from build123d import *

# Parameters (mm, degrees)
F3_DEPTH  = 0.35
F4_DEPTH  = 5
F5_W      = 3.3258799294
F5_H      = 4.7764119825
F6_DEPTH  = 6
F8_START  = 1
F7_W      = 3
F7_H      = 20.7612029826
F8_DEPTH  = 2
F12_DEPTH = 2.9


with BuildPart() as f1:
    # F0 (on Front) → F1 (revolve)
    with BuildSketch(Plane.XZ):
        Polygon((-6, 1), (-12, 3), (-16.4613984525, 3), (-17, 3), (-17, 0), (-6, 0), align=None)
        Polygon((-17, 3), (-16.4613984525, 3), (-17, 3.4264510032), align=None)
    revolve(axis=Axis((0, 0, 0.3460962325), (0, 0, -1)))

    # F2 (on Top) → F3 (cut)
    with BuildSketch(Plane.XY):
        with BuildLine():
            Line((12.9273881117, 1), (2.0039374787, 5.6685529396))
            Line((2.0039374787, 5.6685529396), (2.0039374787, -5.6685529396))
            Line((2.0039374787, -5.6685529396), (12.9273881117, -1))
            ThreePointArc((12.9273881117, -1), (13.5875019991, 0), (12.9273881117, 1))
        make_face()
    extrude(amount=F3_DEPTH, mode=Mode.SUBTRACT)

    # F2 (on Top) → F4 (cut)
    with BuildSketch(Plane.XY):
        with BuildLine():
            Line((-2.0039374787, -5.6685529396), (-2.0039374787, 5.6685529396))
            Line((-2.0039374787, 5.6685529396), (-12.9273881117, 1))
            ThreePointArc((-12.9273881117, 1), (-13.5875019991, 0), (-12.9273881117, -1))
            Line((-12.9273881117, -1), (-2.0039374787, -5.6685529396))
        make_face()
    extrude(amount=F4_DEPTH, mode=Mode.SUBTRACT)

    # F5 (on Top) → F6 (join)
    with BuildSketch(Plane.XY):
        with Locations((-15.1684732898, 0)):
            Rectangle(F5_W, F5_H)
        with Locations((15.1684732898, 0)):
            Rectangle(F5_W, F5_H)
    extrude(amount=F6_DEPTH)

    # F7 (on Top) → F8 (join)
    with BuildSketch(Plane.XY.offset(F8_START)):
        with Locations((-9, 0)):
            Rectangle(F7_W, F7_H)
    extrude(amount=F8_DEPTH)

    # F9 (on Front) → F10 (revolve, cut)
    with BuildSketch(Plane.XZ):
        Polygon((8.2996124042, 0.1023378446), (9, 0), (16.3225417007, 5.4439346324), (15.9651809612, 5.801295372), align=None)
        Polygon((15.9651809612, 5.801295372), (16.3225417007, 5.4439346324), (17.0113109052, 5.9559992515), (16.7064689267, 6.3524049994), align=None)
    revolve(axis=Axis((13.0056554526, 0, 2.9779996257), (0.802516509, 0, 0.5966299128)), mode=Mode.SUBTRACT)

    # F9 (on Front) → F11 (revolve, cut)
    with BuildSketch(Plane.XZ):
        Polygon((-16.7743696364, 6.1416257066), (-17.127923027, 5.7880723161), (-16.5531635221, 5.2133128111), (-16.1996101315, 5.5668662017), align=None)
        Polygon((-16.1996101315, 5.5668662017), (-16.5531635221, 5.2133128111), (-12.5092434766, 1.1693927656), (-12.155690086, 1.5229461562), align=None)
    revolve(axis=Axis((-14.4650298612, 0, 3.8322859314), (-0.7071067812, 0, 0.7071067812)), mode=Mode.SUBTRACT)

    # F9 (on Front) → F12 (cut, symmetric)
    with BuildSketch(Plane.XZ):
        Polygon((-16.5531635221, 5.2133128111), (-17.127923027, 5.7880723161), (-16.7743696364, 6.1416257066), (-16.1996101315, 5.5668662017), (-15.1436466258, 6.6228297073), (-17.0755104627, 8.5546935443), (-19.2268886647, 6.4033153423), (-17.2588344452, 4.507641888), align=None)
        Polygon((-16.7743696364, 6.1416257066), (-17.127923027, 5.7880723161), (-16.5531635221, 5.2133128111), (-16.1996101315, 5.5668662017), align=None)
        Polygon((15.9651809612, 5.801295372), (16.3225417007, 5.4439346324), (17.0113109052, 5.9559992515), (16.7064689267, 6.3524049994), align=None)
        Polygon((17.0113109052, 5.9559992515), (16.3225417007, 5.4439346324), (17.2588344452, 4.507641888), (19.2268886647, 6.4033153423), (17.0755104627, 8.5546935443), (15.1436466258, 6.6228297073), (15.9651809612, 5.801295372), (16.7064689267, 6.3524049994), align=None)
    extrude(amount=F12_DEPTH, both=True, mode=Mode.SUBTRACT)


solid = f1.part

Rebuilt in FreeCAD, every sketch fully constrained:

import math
import FreeCAD as App
import Part
import Sketcher
from FreeCAD import Vector
Q = App.Units.Quantity

doc = App.newDocument("Part")
body = doc.addObject("PartDesign::Body", "Body")

sketch1 = body.newObject("Sketcher::SketchObject", "Sketch")
sketch1.AttachmentSupport = (doc.getObject("XZ_Plane"), [""])
sketch1.MapMode = "FlatFace"
sketch1.addGeometry([
    Part.LineSegment(Vector(-6, 1, 0), Vector(-12, 3, 0)),
    Part.LineSegment(Vector(-12, 3, 0), Vector(-16.461398, 3, 0)),
    Part.LineSegment(Vector(-16.461398, 3, 0), Vector(-17, 3.426451, 0)),
    Part.LineSegment(Vector(-17, 3.426451, 0), Vector(-17, 0, 0)),
    Part.LineSegment(Vector(-17, 0, 0), Vector(-6, 0, 0)),
    Part.LineSegment(Vector(-6, 0, 0), Vector(-6, 1, 0)),
], False)
sketch1.addConstraint([
    Sketcher.Constraint("Coincident", 0, 2, 1, 1),
    Sketcher.Constraint("Coincident", 1, 2, 2, 1),
    Sketcher.Constraint("Coincident", 2, 2, 3, 1),
    Sketcher.Constraint("Coincident", 3, 2, 4, 1),
    Sketcher.Constraint("Coincident", 4, 2, 5, 1),
    Sketcher.Constraint("Coincident", 5, 2, 0, 1),
    Sketcher.Constraint("Horizontal", 1),
    Sketcher.Constraint("Vertical", 3),
    Sketcher.Constraint("Horizontal", 4),
    Sketcher.Constraint("Vertical", 5),
    Sketcher.Constraint("PointOnObject", 3, 2, -1),
    Sketcher.Constraint("DistanceX", 4, 1, 4, 2, 11.0),
    Sketcher.Constraint("DistanceY", 5, 1, 5, 2, 1.0),
    Sketcher.Constraint("DistanceX", 0, 2, -1, 1, 12.0),
    Sketcher.Constraint("DistanceY", -1, 1, 0, 2, 3.0),
    Sketcher.Constraint("DistanceX", 2, 2, -1, 1, 17.0),
    Sketcher.Constraint("DistanceX", 1, 2, 1, 1, 4.461398),
    Sketcher.Constraint("DistanceY", 3, 2, 3, 1, 3.426451),
])
revolution = body.newObject("PartDesign::Revolution", "Revolution")
revolution.Profile = sketch1
revolution.ReferenceAxis = (sketch1, ["V_Axis"])
revolution.Angle = 360

sketch2 = body.newObject("Sketcher::SketchObject", "Sketch001")
sketch2.AttachmentSupport = (doc.getObject("XY_Plane"), [""])
sketch2.MapMode = "FlatFace"
sketch2.addGeometry([
    Part.LineSegment(Vector(12.927388, 1, 0), Vector(2.003937, 5.668553, 0)),
    Part.LineSegment(Vector(2.003937, 5.668553, 0), Vector(2.003937, -5.668553, 0)),
    Part.LineSegment(Vector(2.003937, -5.668553, 0), Vector(12.927388, -1, 0)),
    Part.ArcOfCircle(Part.Circle(Vector(12.5, 0, 0), Vector(0, 0, 1), 1.087502), math.radians(-66.858713), math.radians(66.858713)),
], False)
sketch2.addConstraint([
    Sketcher.Constraint("Coincident", 0, 2, 1, 1),
    Sketcher.Constraint("Coincident", 1, 2, 2, 1),
    Sketcher.Constraint("Tangent", 2, 2, 3, 1),
    Sketcher.Constraint("Tangent", 3, 2, 0, 1),
    Sketcher.Constraint("Vertical", 1),
    Sketcher.Constraint("Symmetric", 2, 2, 3, 2, -1),
    Sketcher.Constraint("DistanceY", 2, 2, -1, 1, 1.0),
    Sketcher.Constraint("DistanceX", -1, 1, 3, 3, 12.5),
    Sketcher.Constraint("Radius", 3, 1.087502),
    Sketcher.Constraint("DistanceY", 1, 2, 1, 1, 11.337106),
])
pocket1 = body.newObject("PartDesign::Pocket", "Pocket")
pocket1.Profile = sketch2
pocket1.Length = 0.35
pocket1.Reversed = True

sketch3 = body.newObject("Sketcher::SketchObject", "Sketch002")
sketch3.AttachmentSupport = (doc.getObject("XY_Plane"), [""])
sketch3.MapMode = "FlatFace"
sketch3.addGeometry([
    Part.LineSegment(Vector(-2.003937, -5.668553, 0), Vector(-2.003937, 5.668553, 0)),
    Part.LineSegment(Vector(-2.003937, 5.668553, 0), Vector(-12.927388, 1, 0)),
    Part.ArcOfCircle(Part.Circle(Vector(-12.5, 0, 0), Vector(0, 0, 1), 1.087502), math.radians(113.141287), math.radians(246.858713)),
    Part.LineSegment(Vector(-12.927388, -1, 0), Vector(-2.003937, -5.668553, 0)),
], False)
sketch3.addConstraint([
    Sketcher.Constraint("Coincident", 0, 2, 1, 1),
    Sketcher.Constraint("Tangent", 1, 2, 2, 1),
    Sketcher.Constraint("Tangent", 2, 2, 3, 1),
    Sketcher.Constraint("Coincident", 3, 2, 0, 1),
    Sketcher.Constraint("Vertical", 0),
    Sketcher.Constraint("Symmetric", 1, 2, 2, 2, -1),
    Sketcher.Constraint("DistanceY", -1, 1, 1, 2, 1.0),
    Sketcher.Constraint("DistanceX", 2, 3, -1, 1, 12.5),
    Sketcher.Constraint("Radius", 2, 1.087502),
    Sketcher.Constraint("DistanceY", 0, 1, 0, 2, 11.337106),
])
pocket2 = body.newObject("PartDesign::Pocket", "Pocket001")
pocket2.Profile = sketch3
pocket2.Length = 5
pocket2.Reversed = True

sketch4 = body.newObject("Sketcher::SketchObject", "Sketch003")
sketch4.AttachmentSupport = (doc.getObject("XY_Plane"), [""])
sketch4.MapMode = "FlatFace"
sketch4.addGeometry([
    Part.LineSegment(Vector(-16.831413, 2.388206, 0), Vector(-16.831413, -2.388206, 0)),
    Part.LineSegment(Vector(-16.831413, -2.388206, 0), Vector(-13.505533, -2.388206, 0)),
    Part.LineSegment(Vector(-13.505533, -2.388206, 0), Vector(-13.505533, 2.388206, 0)),
    Part.LineSegment(Vector(-13.505533, 2.388206, 0), Vector(-16.831413, 2.388206, 0)),
    Part.LineSegment(Vector(13.505533, 2.388206, 0), Vector(13.505533, -2.388206, 0)),
    Part.LineSegment(Vector(13.505533, -2.388206, 0), Vector(16.831413, -2.388206, 0)),
    Part.LineSegment(Vector(16.831413, -2.388206, 0), Vector(16.831413, 2.388206, 0)),
    Part.LineSegment(Vector(16.831413, 2.388206, 0), Vector(13.505533, 2.388206, 0)),
], False)
sketch4.addConstraint([
    Sketcher.Constraint("Coincident", 0, 2, 1, 1),
    Sketcher.Constraint("Coincident", 1, 2, 2, 1),
    Sketcher.Constraint("Coincident", 2, 2, 3, 1),
    Sketcher.Constraint("Coincident", 3, 2, 0, 1),
    Sketcher.Constraint("Coincident", 4, 2, 5, 1),
    Sketcher.Constraint("Coincident", 5, 2, 6, 1),
    Sketcher.Constraint("Coincident", 6, 2, 7, 1),
    Sketcher.Constraint("Coincident", 7, 2, 4, 1),
    Sketcher.Constraint("Vertical", 0),
    Sketcher.Constraint("Horizontal", 1),
    Sketcher.Constraint("Vertical", 2),
    Sketcher.Constraint("Horizontal", 3),
    Sketcher.Constraint("Vertical", 4),
    Sketcher.Constraint("Horizontal", 5),
    Sketcher.Constraint("Vertical", 6),
    Sketcher.Constraint("Horizontal", 7),
    Sketcher.Constraint("Symmetric", 2, 2, 4, 2, -1, 1),
    Sketcher.Constraint("Symmetric", 0, 2, 6, 2, -1, 1),
    Sketcher.Constraint("Horizontal", 1, 2, 4, 2),
    Sketcher.Constraint("DistanceX", 1, 1, 1, 2, 3.32588),
    Sketcher.Constraint("DistanceY", 0, 2, 0, 1, 4.776412),
    Sketcher.Constraint("DistanceX", 0, 2, -1, 1, 16.831413),
])
pad1 = body.newObject("PartDesign::Pad", "Pad")
pad1.Profile = sketch4
pad1.Length = 6

sketch5 = body.newObject("Sketcher::SketchObject", "Sketch004")
sketch5.AttachmentSupport = (doc.getObject("XY_Plane"), [""])
sketch5.MapMode = "FlatFace"
sketch5.AttachmentOffset = App.Placement(Vector(0, 0, 1), App.Rotation())
sketch5.addGeometry([
    Part.LineSegment(Vector(-10.5, 10.380601, 0), Vector(-10.5, -10.380601, 0)),
    Part.LineSegment(Vector(-10.5, -10.380601, 0), Vector(-7.5, -10.380601, 0)),
    Part.LineSegment(Vector(-7.5, -10.380601, 0), Vector(-7.5, 10.380601, 0)),
    Part.LineSegment(Vector(-7.5, 10.380601, 0), Vector(-10.5, 10.380601, 0)),
], False)
sketch5.addConstraint([
    Sketcher.Constraint("Coincident", 0, 2, 1, 1),
    Sketcher.Constraint("Coincident", 1, 2, 2, 1),
    Sketcher.Constraint("Coincident", 2, 2, 3, 1),
    Sketcher.Constraint("Coincident", 3, 2, 0, 1),
    Sketcher.Constraint("Vertical", 0),
    Sketcher.Constraint("Horizontal", 1),
    Sketcher.Constraint("Vertical", 2),
    Sketcher.Constraint("Horizontal", 3),
    Sketcher.Constraint("DistanceX", 1, 1, 1, 2, 3.0),
    Sketcher.Constraint("DistanceX", 0, 2, -1, 1, 10.5),
    Sketcher.Constraint("DistanceY", 0, 2, -1, 1, 10.380601),
    Sketcher.Constraint("DistanceY", -1, 1, 2, 2, 10.380601),
])
pad2 = body.newObject("PartDesign::Pad", "Pad001")
pad2.Profile = sketch5
pad2.Length = 2

sketch6 = body.newObject("Sketcher::SketchObject", "Sketch005")
sketch6.AttachmentSupport = (doc.getObject("XZ_Plane"), [""])
sketch6.MapMode = "FlatFace"
sketch6.addGeometry([
    Part.LineSegment(Vector(8.299612, 0.102338, 0), Vector(9, 0, 0)),
    Part.LineSegment(Vector(9, 0, 0), Vector(16.322542, 5.443935, 0)),
    Part.LineSegment(Vector(16.322542, 5.443935, 0), Vector(17.011311, 5.955999, 0)),
    Part.LineSegment(Vector(17.011311, 5.955999, 0), Vector(16.706469, 6.352405, 0)),
    Part.LineSegment(Vector(16.706469, 6.352405, 0), Vector(15.965181, 5.801295, 0)),
    Part.LineSegment(Vector(15.965181, 5.801295, 0), Vector(8.299612, 0.102338, 0)),
], False)
sketch6.addGeometry(Part.LineSegment(Vector(8.597927, -0.29892, 0), Vector(17.011311, 5.955999, 0)), True)
sketch6.addConstraint([
    Sketcher.Constraint("Coincident", 0, 2, 1, 1),
    Sketcher.Constraint("Coincident", 1, 2, 2, 1),
    Sketcher.Constraint("Coincident", 2, 2, 3, 1),
    Sketcher.Constraint("Coincident", 3, 2, 4, 1),
    Sketcher.Constraint("Coincident", 4, 2, 5, 1),
    Sketcher.Constraint("Coincident", 5, 2, 0, 1),
    Sketcher.Constraint("Coincident", 6, 2, 2, 2),
    Sketcher.Constraint("PointOnObject", 0, 2, -1),
    Sketcher.Constraint("Parallel", 1, 2),
    Sketcher.Constraint("Parallel", 2, 4),
    Sketcher.Constraint("Parallel", 4, 5),
    Sketcher.Constraint("Parallel", 5, 6),
    Sketcher.Constraint("DistanceX", -1, 1, 0, 2, 9.0),
    Sketcher.Constraint("DistanceY", -1, 1, 2, 2, 5.955999),
    Sketcher.Constraint("DistanceX", 5, 2, 2, 2, 8.711699),
    Sketcher.Constraint("Distance", 2, 0.858262),
    Sketcher.Constraint("Distance", 6, 10.483751),
    Sketcher.Constraint("DistanceX", -1, 1, 1, 2, 16.322542),
    Sketcher.Constraint("DistanceX", -1, 1, 3, 2, 16.706469),
    Sketcher.Constraint("DistanceX", -1, 1, 4, 2, 15.965181),
    Sketcher.Constraint("DistanceY", 1, 2, 3, 2, 0.90847),
])
groove = body.newObject("PartDesign::Groove", "Groove")
groove.Profile = sketch6
groove.ReferenceAxis = (sketch6, ["Axis0"])
groove.Angle = 360

sketch7 = body.newObject("Sketcher::SketchObject", "Sketch006")
sketch7.AttachmentSupport = (doc.getObject("XZ_Plane"), [""])
sketch7.MapMode = "FlatFace"
sketch7.addGeometry([
    Part.LineSegment(Vector(-16.77437, 6.141626, 0), Vector(-17.127923, 5.788072, 0)),
    Part.LineSegment(Vector(-17.127923, 5.788072, 0), Vector(-16.553164, 5.213313, 0)),
    Part.LineSegment(Vector(-16.553164, 5.213313, 0), Vector(-12.509243, 1.169393, 0)),
    Part.LineSegment(Vector(-12.509243, 1.169393, 0), Vector(-12.15569, 1.522946, 0)),
    Part.LineSegment(Vector(-12.15569, 1.522946, 0), Vector(-16.77437, 6.141626, 0)),
], False)
sketch7.addGeometry(Part.LineSegment(Vector(-12.15569, 1.522946, 0), Vector(-16.77437, 6.141626, 0)), True)
sketch7.addConstraint([
    Sketcher.Constraint("Coincident", 0, 2, 1, 1),
    Sketcher.Constraint("Coincident", 1, 2, 2, 1),
    Sketcher.Constraint("Coincident", 2, 2, 3, 1),
    Sketcher.Constraint("Coincident", 3, 2, 4, 1),
    Sketcher.Constraint("Coincident", 4, 2, 0, 1),
    Sketcher.Constraint("Coincident", 5, 1, 3, 2),
    Sketcher.Constraint("Coincident", 5, 2, 4, 2),
    Sketcher.Constraint("Perpendicular", 0, 1),
    Sketcher.Constraint("Parallel", 1, 2),
    Sketcher.Constraint("Perpendicular", 2, 3),
    Sketcher.Constraint("Perpendicular", 3, 4),
    Sketcher.Constraint("Angle", 0, Q("-135 deg")),
    Sketcher.Constraint("Distance", 0, 0.5),
    Sketcher.Constraint("Distance", 4, 6.531799),
    Sketcher.Constraint("DistanceX", 3, 2, -1, 1, 12.15569),
    Sketcher.Constraint("DistanceX", 0, 2, 1, 2, 0.57476),
    Sketcher.Constraint("DistanceY", -1, 1, 0, 2, 5.788072),
])
groove2 = body.newObject("PartDesign::Groove", "Groove001")
groove2.Profile = sketch7
groove2.ReferenceAxis = (sketch7, ["Axis0"])
groove2.Angle = 360

sketch8 = body.newObject("Sketcher::SketchObject", "Sketch007")
sketch8.AttachmentSupport = (doc.getObject("XZ_Plane"), [""])
sketch8.MapMode = "FlatFace"
sketch8.addGeometry([
    Part.LineSegment(Vector(-16.19961, 5.566866, 0), Vector(-15.143647, 6.62283, 0)),
    Part.LineSegment(Vector(-15.143647, 6.62283, 0), Vector(-17.07551, 8.554694, 0)),
    Part.LineSegment(Vector(-17.07551, 8.554694, 0), Vector(-19.226889, 6.403315, 0)),
    Part.LineSegment(Vector(-19.226889, 6.403315, 0), Vector(-17.258834, 4.507642, 0)),
    Part.LineSegment(Vector(-17.258834, 4.507642, 0), Vector(-16.19961, 5.566866, 0)),
    Part.LineSegment(Vector(15.965181, 5.801295, 0), Vector(16.322542, 5.443935, 0)),
    Part.LineSegment(Vector(16.322542, 5.443935, 0), Vector(17.258834, 4.507642, 0)),
    Part.LineSegment(Vector(17.258834, 4.507642, 0), Vector(19.226889, 6.403315, 0)),
    Part.LineSegment(Vector(19.226889, 6.403315, 0), Vector(17.07551, 8.554694, 0)),
    Part.LineSegment(Vector(17.07551, 8.554694, 0), Vector(15.143647, 6.62283, 0)),
    Part.LineSegment(Vector(15.143647, 6.62283, 0), Vector(15.965181, 5.801295, 0)),
], False)
sketch8.addConstraint([
    Sketcher.Constraint("Coincident", 0, 2, 1, 1),
    Sketcher.Constraint("Coincident", 1, 2, 2, 1),
    Sketcher.Constraint("Coincident", 2, 2, 3, 1),
    Sketcher.Constraint("Coincident", 3, 2, 4, 1),
    Sketcher.Constraint("Coincident", 4, 2, 0, 1),
    Sketcher.Constraint("Coincident", 5, 2, 6, 1),
    Sketcher.Constraint("Coincident", 6, 2, 7, 1),
    Sketcher.Constraint("Coincident", 7, 2, 8, 1),
    Sketcher.Constraint("Coincident", 8, 2, 9, 1),
    Sketcher.Constraint("Coincident", 9, 2, 10, 1),
    Sketcher.Constraint("Coincident", 10, 2, 5, 1),
    Sketcher.Constraint("Symmetric", 3, 2, 6, 2, -2),
    Sketcher.Constraint("Symmetric", 2, 2, 7, 2, -2),
    Sketcher.Constraint("Symmetric", 1, 2, 8, 2, -2),
    Sketcher.Constraint("Symmetric", 0, 2, 9, 2, -2),
    Sketcher.Constraint("Perpendicular", 0, 1),
    Sketcher.Constraint("Perpendicular", 1, 2),
    Sketcher.Constraint("Parallel", 2, 4),
    Sketcher.Constraint("Perpendicular", 4, 5),
    Sketcher.Constraint("Parallel", 5, 6),
    Sketcher.Constraint("Parallel", 6, 8),
    Sketcher.Constraint("DistanceX", 1, 2, 4, 2, 0.8759),
    Sketcher.Constraint("DistanceX", 4, 2, 7, 2, 35.426499),
    Sketcher.Constraint("DistanceY", 10, 2, 8, 2, 2.753398),
    Sketcher.Constraint("Distance", 1, 2.732068),
    Sketcher.Constraint("Distance", 2, 3.042508),
    Sketcher.Constraint("Distance", 4, 1.497969),
    Sketcher.Constraint("DistanceY", -1, 1, 0, 2, 6.62283),
    Sketcher.Constraint("DistanceX", -1, 1, 5, 2, 16.322542),
])
pocket3 = body.newObject("PartDesign::Pocket", "Pocket002")
pocket3.Profile = sketch8
pocket3.Length = 5.8
pocket3.Midplane = True

doc.recompute()
